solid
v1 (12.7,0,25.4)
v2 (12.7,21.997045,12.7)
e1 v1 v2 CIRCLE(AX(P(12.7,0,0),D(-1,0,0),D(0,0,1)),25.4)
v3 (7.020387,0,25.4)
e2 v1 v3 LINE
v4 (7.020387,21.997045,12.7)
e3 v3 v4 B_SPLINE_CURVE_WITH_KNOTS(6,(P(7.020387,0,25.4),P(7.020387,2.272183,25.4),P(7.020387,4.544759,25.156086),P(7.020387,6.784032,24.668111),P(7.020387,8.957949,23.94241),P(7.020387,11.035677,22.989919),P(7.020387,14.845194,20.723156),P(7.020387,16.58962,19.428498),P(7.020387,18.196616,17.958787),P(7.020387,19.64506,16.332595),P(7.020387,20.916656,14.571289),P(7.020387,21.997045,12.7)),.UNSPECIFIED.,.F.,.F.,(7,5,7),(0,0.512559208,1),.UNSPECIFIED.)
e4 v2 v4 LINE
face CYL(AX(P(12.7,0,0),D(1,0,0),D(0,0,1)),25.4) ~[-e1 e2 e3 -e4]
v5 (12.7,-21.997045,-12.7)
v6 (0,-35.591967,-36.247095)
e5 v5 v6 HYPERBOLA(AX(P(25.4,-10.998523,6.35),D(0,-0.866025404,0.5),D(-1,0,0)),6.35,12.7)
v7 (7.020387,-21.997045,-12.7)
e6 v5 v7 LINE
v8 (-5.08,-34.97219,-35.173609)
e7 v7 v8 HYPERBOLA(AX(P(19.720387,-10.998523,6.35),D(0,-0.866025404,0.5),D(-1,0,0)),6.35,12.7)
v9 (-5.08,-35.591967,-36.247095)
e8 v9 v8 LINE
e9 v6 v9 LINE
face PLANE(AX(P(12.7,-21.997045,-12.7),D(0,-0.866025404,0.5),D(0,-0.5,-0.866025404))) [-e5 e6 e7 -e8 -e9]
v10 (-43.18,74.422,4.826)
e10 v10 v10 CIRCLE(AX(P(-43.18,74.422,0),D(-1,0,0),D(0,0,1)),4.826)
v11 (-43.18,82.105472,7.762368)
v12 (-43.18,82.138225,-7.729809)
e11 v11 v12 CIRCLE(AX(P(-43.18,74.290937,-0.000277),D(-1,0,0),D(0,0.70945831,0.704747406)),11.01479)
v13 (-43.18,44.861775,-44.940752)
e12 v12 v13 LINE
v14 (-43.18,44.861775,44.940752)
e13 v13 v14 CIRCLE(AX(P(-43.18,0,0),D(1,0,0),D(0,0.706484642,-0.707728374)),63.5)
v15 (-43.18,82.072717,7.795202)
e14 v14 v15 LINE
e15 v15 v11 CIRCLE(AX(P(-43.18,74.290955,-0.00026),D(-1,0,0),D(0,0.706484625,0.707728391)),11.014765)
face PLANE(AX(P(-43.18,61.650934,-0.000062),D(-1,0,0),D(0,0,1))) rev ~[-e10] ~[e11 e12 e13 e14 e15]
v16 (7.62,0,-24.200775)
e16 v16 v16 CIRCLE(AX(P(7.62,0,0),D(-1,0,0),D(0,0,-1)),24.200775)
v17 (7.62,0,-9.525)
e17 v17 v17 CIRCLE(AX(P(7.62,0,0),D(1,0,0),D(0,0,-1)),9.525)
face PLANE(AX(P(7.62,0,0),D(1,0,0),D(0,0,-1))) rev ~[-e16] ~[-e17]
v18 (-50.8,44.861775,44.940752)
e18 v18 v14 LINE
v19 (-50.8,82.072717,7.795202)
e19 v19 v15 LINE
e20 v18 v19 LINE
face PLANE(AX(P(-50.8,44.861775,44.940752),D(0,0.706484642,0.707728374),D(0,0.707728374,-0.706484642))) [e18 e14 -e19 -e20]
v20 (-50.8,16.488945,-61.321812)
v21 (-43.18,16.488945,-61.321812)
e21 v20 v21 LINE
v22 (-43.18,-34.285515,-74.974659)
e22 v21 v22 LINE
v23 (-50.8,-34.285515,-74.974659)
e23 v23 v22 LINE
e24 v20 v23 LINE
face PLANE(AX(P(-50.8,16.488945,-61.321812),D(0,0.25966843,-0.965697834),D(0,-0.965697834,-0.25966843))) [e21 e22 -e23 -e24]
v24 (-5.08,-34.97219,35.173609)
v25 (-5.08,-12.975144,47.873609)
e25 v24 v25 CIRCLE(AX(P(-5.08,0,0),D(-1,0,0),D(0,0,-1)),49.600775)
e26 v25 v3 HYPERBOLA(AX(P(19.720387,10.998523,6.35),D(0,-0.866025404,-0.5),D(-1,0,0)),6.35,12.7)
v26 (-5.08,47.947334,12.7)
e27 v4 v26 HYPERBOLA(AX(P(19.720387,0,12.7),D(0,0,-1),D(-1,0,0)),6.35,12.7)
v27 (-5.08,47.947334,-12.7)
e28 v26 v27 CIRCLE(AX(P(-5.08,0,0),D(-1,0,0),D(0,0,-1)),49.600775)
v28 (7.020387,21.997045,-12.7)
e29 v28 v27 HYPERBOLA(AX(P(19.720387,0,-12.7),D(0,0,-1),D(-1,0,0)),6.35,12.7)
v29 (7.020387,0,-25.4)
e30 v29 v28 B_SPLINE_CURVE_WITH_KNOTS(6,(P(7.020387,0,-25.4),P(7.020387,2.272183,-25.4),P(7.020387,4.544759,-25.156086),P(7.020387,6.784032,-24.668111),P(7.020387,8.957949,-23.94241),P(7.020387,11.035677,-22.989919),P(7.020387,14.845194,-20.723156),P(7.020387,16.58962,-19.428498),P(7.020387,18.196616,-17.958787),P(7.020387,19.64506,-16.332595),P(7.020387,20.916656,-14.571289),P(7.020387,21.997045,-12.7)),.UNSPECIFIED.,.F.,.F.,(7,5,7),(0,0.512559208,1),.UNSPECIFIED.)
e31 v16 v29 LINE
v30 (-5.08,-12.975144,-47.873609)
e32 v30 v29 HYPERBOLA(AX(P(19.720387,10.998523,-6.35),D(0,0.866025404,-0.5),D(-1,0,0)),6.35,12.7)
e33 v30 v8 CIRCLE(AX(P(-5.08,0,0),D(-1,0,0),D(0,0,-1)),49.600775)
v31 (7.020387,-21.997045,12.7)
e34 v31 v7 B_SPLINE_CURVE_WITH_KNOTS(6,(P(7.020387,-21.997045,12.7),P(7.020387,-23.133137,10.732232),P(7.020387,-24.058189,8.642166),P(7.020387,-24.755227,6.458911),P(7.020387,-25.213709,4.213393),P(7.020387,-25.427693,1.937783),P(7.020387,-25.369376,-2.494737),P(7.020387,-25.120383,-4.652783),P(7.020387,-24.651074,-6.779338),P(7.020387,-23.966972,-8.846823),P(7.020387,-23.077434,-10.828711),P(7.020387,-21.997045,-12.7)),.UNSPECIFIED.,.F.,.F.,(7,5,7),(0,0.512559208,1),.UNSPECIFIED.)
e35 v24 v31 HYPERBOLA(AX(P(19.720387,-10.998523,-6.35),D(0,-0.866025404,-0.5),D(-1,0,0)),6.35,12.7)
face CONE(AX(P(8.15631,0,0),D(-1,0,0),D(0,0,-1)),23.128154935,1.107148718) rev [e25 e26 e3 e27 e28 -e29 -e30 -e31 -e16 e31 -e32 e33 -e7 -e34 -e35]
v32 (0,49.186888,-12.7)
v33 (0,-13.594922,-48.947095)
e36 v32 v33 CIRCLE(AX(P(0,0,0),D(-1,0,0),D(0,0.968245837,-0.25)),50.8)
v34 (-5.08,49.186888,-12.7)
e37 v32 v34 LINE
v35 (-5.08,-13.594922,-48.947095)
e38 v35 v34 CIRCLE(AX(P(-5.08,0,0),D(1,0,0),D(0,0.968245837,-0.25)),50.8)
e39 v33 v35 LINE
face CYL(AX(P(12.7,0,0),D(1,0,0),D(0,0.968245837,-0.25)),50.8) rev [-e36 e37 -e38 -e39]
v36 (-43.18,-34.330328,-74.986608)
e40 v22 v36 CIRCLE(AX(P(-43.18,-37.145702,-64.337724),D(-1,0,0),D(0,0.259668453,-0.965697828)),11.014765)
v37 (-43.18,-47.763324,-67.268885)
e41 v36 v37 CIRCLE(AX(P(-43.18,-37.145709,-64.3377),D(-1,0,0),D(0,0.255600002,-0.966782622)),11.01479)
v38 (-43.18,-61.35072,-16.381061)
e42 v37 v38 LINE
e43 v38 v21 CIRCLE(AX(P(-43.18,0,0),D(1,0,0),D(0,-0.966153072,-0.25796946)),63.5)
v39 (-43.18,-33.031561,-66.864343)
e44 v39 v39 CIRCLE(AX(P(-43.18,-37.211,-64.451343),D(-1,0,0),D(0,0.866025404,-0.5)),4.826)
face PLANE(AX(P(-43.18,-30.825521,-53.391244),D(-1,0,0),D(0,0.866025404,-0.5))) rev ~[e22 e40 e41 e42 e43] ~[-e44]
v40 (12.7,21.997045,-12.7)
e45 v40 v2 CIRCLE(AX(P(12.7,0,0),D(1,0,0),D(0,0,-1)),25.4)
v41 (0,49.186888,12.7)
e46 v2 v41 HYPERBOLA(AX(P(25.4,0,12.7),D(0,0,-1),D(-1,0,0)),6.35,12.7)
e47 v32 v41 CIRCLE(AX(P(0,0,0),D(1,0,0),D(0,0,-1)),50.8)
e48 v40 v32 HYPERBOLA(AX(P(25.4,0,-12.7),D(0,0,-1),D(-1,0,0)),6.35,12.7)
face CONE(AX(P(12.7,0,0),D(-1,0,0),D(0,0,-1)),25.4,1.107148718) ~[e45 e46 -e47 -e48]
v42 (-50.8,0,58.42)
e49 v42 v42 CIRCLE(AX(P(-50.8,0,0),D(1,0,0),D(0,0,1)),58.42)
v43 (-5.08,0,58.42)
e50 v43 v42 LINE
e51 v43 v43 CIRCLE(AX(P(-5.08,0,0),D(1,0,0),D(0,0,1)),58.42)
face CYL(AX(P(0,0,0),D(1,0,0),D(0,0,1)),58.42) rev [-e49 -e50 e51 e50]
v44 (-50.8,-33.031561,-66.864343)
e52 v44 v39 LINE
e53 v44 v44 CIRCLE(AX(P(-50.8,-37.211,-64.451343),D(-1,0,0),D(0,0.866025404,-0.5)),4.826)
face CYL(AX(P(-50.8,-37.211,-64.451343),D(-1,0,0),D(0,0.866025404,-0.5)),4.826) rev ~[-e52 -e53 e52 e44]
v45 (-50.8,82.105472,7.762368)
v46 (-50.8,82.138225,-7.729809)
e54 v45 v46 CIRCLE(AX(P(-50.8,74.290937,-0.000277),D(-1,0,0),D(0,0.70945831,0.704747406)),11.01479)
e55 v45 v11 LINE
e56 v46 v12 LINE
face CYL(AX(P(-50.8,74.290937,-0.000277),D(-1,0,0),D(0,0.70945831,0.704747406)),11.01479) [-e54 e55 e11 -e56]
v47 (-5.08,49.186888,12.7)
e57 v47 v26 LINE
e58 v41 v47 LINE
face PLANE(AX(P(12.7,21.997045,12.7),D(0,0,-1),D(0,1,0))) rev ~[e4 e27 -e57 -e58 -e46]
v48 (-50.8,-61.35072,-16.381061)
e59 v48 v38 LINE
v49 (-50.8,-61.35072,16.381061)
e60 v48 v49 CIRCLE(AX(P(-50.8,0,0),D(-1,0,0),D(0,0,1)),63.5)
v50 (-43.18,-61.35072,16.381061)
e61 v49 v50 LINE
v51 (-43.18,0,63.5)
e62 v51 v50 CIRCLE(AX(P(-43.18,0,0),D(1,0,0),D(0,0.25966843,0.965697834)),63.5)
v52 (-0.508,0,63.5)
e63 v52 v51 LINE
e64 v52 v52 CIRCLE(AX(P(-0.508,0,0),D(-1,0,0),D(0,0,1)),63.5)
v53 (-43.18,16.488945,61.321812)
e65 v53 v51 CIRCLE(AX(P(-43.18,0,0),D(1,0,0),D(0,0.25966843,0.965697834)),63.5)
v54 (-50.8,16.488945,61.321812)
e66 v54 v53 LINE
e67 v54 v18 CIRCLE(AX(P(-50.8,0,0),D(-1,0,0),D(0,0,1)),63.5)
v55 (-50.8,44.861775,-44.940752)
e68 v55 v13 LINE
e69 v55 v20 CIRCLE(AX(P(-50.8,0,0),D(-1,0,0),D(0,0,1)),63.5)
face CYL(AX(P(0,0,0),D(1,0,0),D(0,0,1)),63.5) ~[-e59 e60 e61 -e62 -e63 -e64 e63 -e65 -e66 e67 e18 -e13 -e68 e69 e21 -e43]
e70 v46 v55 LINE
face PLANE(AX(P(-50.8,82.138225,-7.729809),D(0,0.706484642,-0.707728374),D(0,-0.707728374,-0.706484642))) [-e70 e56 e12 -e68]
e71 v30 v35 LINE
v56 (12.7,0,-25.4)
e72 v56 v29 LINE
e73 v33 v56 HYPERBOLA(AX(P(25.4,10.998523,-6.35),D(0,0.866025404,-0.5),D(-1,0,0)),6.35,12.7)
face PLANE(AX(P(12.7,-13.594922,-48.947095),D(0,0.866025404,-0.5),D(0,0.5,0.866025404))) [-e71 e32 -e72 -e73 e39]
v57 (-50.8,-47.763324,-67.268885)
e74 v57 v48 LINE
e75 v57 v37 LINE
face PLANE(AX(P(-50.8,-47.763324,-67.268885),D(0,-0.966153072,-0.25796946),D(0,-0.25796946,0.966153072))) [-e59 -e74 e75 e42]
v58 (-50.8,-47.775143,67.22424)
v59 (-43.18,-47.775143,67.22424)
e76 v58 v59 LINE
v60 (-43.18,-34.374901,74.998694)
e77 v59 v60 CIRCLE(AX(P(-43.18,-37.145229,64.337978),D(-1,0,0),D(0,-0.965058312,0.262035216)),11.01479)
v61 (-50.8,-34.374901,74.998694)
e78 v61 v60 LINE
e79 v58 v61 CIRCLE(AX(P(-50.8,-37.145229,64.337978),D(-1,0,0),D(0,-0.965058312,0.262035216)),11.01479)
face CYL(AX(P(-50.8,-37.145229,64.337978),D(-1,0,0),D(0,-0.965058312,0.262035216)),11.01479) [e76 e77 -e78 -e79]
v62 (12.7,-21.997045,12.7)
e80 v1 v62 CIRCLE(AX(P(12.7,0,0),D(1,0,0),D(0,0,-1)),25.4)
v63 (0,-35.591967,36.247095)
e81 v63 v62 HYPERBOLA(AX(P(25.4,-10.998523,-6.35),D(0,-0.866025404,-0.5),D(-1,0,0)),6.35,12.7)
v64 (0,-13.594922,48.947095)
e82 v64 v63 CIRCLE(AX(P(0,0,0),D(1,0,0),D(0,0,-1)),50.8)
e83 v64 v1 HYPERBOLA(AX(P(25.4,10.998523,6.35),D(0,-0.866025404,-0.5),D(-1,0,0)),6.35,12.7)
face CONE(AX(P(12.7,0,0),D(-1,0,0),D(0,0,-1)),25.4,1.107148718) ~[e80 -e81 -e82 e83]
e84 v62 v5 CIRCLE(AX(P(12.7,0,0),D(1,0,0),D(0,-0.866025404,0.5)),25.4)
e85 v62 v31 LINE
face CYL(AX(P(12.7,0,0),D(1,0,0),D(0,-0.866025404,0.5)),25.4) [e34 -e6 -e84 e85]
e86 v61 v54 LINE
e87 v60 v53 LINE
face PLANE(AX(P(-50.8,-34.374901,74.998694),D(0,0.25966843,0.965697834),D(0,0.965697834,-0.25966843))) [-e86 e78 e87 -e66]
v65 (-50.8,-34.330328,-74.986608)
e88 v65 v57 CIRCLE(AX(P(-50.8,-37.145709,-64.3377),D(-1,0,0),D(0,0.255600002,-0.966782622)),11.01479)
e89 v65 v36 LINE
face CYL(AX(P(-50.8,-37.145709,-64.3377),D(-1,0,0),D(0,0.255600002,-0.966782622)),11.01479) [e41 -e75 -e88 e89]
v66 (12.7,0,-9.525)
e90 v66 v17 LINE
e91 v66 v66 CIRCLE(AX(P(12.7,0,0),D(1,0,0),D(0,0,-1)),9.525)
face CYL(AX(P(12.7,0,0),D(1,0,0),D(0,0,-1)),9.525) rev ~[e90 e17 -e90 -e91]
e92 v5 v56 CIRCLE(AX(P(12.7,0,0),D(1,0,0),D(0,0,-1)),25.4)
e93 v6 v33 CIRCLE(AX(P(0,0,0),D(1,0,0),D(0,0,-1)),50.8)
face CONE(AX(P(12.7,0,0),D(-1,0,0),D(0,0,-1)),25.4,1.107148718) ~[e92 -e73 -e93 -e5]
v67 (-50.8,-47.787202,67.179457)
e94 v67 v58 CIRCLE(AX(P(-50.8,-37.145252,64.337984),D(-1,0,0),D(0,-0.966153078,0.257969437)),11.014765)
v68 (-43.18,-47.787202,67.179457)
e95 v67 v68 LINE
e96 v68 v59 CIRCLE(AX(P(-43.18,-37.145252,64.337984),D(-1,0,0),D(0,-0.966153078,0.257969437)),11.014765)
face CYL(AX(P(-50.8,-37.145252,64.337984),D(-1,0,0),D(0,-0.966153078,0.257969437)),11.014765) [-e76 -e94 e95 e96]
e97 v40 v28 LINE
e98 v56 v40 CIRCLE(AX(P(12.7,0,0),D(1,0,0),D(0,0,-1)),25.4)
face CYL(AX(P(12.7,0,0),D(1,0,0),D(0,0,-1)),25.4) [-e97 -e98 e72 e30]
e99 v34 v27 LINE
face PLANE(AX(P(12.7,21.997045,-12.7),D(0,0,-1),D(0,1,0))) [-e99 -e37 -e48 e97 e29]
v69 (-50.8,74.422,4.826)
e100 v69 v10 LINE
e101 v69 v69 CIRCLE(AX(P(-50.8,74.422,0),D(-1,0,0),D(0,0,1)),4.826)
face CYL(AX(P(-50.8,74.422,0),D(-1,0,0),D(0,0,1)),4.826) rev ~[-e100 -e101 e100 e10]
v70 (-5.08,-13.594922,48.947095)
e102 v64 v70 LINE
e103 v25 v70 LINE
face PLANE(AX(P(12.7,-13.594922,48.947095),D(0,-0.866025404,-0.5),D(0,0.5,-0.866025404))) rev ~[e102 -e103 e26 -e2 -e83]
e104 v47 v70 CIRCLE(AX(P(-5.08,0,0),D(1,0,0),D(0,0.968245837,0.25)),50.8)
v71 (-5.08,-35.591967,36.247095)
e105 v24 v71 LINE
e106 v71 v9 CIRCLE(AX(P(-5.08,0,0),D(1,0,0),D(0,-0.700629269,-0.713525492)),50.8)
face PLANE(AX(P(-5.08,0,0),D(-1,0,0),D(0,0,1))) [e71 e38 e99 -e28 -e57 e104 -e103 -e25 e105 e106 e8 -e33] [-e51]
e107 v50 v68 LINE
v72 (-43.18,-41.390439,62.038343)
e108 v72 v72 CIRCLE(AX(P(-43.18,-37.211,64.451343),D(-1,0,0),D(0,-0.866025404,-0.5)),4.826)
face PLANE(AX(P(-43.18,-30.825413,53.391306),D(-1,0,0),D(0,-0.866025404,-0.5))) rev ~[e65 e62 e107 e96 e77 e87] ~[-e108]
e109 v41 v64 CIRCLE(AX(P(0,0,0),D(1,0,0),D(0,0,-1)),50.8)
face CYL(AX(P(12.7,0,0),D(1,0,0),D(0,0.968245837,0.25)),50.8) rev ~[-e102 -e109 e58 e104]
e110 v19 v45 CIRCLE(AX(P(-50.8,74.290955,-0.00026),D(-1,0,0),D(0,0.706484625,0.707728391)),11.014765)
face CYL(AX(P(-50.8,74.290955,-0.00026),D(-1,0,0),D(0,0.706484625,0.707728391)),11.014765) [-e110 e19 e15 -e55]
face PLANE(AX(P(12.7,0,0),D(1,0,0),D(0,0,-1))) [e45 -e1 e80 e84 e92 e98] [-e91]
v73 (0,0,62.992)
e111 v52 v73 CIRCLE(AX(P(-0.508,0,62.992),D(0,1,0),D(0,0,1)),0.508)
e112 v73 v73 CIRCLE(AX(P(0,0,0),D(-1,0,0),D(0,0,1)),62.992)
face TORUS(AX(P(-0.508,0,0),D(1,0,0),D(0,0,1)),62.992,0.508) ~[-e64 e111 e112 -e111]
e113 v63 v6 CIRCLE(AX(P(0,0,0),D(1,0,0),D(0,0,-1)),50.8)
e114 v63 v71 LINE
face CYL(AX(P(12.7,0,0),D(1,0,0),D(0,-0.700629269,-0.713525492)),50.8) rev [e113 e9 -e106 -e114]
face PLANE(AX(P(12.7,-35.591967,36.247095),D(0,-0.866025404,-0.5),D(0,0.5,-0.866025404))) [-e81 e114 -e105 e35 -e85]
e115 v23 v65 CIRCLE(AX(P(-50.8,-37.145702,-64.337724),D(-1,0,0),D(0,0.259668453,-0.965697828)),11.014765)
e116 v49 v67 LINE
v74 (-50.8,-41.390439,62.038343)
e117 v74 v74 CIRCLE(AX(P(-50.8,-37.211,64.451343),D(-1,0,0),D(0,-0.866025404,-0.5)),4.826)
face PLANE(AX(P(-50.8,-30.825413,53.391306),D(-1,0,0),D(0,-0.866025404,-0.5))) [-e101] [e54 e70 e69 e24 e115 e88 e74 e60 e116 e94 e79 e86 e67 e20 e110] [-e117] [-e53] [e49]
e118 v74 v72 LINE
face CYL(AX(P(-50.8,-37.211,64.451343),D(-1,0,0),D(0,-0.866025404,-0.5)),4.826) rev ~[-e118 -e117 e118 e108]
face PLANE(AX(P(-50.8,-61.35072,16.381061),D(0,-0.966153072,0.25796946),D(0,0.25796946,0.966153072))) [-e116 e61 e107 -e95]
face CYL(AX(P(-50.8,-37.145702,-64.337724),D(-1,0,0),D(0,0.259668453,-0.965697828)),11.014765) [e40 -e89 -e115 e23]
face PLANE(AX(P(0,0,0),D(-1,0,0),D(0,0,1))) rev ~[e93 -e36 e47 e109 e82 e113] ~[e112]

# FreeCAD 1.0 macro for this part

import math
import FreeCAD as App
import Part
import Sketcher

V = App.Vector
Q = App.Units.Quantity


def edges_at(feature, points):
    """Names of the edges that pass closest to the given points."""
    edges = feature.Shape.Edges
    near = lambda p: min(range(len(edges)), key=lambda i: edges[i].distToShape(Part.Vertex(*p))[0])
    return sorted({f"Edge{near(p) + 1}" for p in points})


def faces_at(feature, points):
    """Names of the faces that lie closest to the given points."""
    faces = feature.Shape.Faces
    near = lambda p: min(range(len(faces)), key=lambda i: faces[i].distToShape(Part.Vertex(*p))[0])
    return sorted({f"Face{near(p) + 1}" for p in points})

doc = App.newDocument("Part")
body = doc.addObject("PartDesign::Body", "Body")

# Sketch on YZ plane
sketch1 = body.newObject("Sketcher::SketchObject", "Sketch")
sketch1.AttachmentSupport = (doc.getObject("YZ_Plane"), [""])
sketch1.MapMode = "FlatFace"
sketch1.AttachmentOffset = App.Placement(V(0, 0, 0.5 * 25.4), App.Rotation())
sketch1.addGeometry(Part.Circle(V(0, 0, 0), V(0, 0, 1), 25), False)
sketch1.addConstraint([
    Sketcher.Constraint("Coincident", 0, 3, -1, 1),
    Sketcher.Constraint("Diameter", 0, Q("2 in")),
])

# Sketch on YZ plane
sketch2 = body.newObject("Sketcher::SketchObject", "Sketch001")
sketch2.AttachmentSupport = (doc.getObject("YZ_Plane"), [""])
sketch2.MapMode = "FlatFace"
sketch2.addGeometry(Part.Circle(V(0, 0, 0), V(0, 0, 1), 51), False)
sketch2.addConstraint([
    Sketcher.Constraint("Coincident", 0, 3, -1, 1),
    Sketcher.Constraint("Diameter", 0, Q("4 in")),
])

additiveloft = body.newObject("PartDesign::AdditiveLoft", "AdditiveLoft")
additiveloft.Profile = sketch1
additiveloft.Sections = [sketch2]

# Sketch on YZ plane
sketch3 = body.newObject("Sketcher::SketchObject", "Sketch002")
sketch3.AttachmentSupport = (doc.getObject("YZ_Plane"), [""])
sketch3.MapMode = "FlatFace"
sketch3.addGeometry(Part.Circle(V(0, 0, 0), V(0, 0, 1), 64), False)
sketch3.addConstraint([
    Sketcher.Constraint("Coincident", 0, 3, -1, 1),
    Sketcher.Constraint("Diameter", 0, Q("5 in")),
])
pad1 = body.newObject("PartDesign::Pad", "Pad")
pad1.Profile = sketch3
pad1.Length = Q("2 in")
pad1.Reversed = True
doc.recompute()

thickness = body.newObject("PartDesign::Thickness", "Thickness")
thickness.Base = (pad1, faces_at(pad1, [(-50.8, 0, 0)]))
thickness.Value = Q("0.2 in")
thickness.Reversed = True
thickness.Join = "Intersection"

# Sketch on YZ plane
sketch4 = body.newObject("Sketcher::SketchObject", "Sketch003")
sketch4.AttachmentSupport = (doc.getObject("YZ_Plane"), [""])
sketch4.MapMode = "FlatFace"
sketch4.AttachmentOffset = App.Placement(V(0, 0, 0.5 * 25.4), App.Rotation())
sketch4.addGeometry([
    Part.LineSegment(V(22, 13, 0), V(49, 13, 0)),  # 0
    Part.ArcOfCircle(Part.Circle(V(0, 0, 0), V(0, 0, 1), 51), math.radians(14), math.radians(106)),  # 1
    Part.LineSegment(V(-14, 49, 0), V(0, 25, 0)),  # 2
    Part.ArcOfCircle(Part.Circle(V(0, 0, 0), V(0, 0, 1), 25), math.radians(30), math.radians(90)),  # 3
    Part.LineSegment(V(49, -13, 0), V(22, -13, 0)),  # 4
    Part.ArcOfCircle(Part.Circle(V(0, 0, 0), V(0, 0, 1), 25), math.radians(-90), math.radians(-30)),  # 5
    Part.LineSegment(V(0, -25, 0), V(-14, -49, 0)),  # 6
    Part.ArcOfCircle(Part.Circle(V(0, 0, 0), V(0, 0, 1), 51), math.radians(-106), math.radians(-14)),  # 7
    Part.LineSegment(V(-36, -36, 0), V(-22, -13, 0)),  # 8
    Part.ArcOfCircle(Part.Circle(V(0, 0, 0), V(0, 0, 1), 25), math.radians(150), math.radians(210)),  # 9
    Part.LineSegment(V(-22, 13, 0), V(-36, 36, 0)),  # 10
    Part.ArcOfCircle(Part.Circle(V(0, 0, 0), V(0, 0, 1), 51), math.radians(134), math.radians(226)),  # 11
], False)
sketch4.addConstraint([
    Sketcher.Constraint("Coincident", 0, 2, 1, 1),
    Sketcher.Constraint("Coincident", 1, 2, 2, 1),
    Sketcher.Constraint("Coincident", 2, 2, 3, 2),
    Sketcher.Constraint("Coincident", 3, 1, 0, 1),
    Sketcher.Constraint("Coincident", 4, 2, 5, 2),
    Sketcher.Constraint("Coincident", 5, 1, 6, 1),
    Sketcher.Constraint("Coincident", 6, 2, 7, 1),
    Sketcher.Constraint("Coincident", 7, 2, 4, 1),
    Sketcher.Constraint("Coincident", 8, 2, 9, 2),
    Sketcher.Constraint("Coincident", 9, 1, 10, 1),
    Sketcher.Constraint("Coincident", 10, 2, 11, 1),
    Sketcher.Constraint("Coincident", 11, 2, 8, 1),
    Sketcher.Constraint("Horizontal", 0),
    Sketcher.Constraint("Horizontal", 4),
    Sketcher.Constraint("Coincident", 1, 3, -1, 1),
    Sketcher.Constraint("Coincident", 3, 3, -1, 1),
    Sketcher.Constraint("Coincident", 5, 3, -1, 1),
    Sketcher.Constraint("Coincident", 7, 3, -1, 1),
    Sketcher.Constraint("Coincident", 9, 3, -1, 1),
    Sketcher.Constraint("Coincident", 11, 3, -1, 1),
    Sketcher.Constraint("Equal", 3, 5),
    Sketcher.Constraint("Equal", 1, 7),
    Sketcher.Constraint("Equal", 5, 9),
    Sketcher.Constraint("Equal", 7, 11),
    Sketcher.Constraint("PointOnObject", 2, 2, -2),
    Sketcher.Constraint("PointOnObject", 5, 1, -2),
    Sketcher.Constraint("Parallel", 6, 8),
    Sketcher.Constraint("Parallel", 2, 10),
    Sketcher.Constraint("Horizontal", 7, 2, 8, 2),
    Sketcher.Constraint("Horizontal", 3, 1, 9, 1),
    Sketcher.Constraint("Vertical", 3, 1, 4, 2),
    Sketcher.Constraint("Vertical", 1, 2, 6, 2),
    Sketcher.Constraint("Equal", 6, 8),
    Sketcher.Constraint("Radius", 1, Q("2 in")),
    Sketcher.Constraint("Radius", 3, Q("1 in")),
    Sketcher.Constraint("Angle", 2, Q("-60 deg")),
])
pocket1 = body.newObject("PartDesign::Pocket", "Pocket")
pocket1.Profile = sketch4
pocket1.Length = Q("2 in")

# Sketch on YZ plane
sketch5 = body.newObject("Sketcher::SketchObject", "Sketch004")
sketch5.AttachmentSupport = (doc.getObject("YZ_Plane"), [""])
sketch5.MapMode = "FlatFace"
sketch5.AttachmentOffset = App.Placement(V(0, 0, -2 * 25.4), App.Rotation())
sketch5.addGeometry([
    Part.ArcOfCircle(Part.Circle(V(74.291, 0, 0), V(0, 0, 1), 11.015), math.radians(-45), math.radians(45)),  # 0
    Part.LineSegment(V(82.138, -7.73, 0), V(44.862, -44.941, 0)),  # 1
    Part.ArcOfCircle(Part.Circle(V(0, 0, 0), V(0, 0, 1), 63.5), math.radians(-45), math.radians(45)),  # 2
    Part.LineSegment(V(44.862, 44.941, 0), V(82.073, 7.795, 0)),  # 3
    Part.ArcOfCircle(Part.Circle(V(74.291, 0, 0), V(0, 0, 1), 11.015), math.radians(44.81), math.radians(45.05)),  # 4
    Part.Circle(V(74.422, 0, 0), V(0, 0, 1), 4.826),  # 5
], False)
sketch5.addConstraint([
    Sketcher.Constraint("Coincident", 0, 1, 1, 1),
    Sketcher.Constraint("Tangent", 1, 2, 2, 1),
    Sketcher.Constraint("Tangent", 2, 2, 3, 1),
    Sketcher.Constraint("Tangent", 3, 2, 4, 2),
    Sketcher.Constraint("Tangent", 4, 1, 0, 2),
    Sketcher.Constraint("Coincident", 2, 3, -1, 1),
    Sketcher.Constraint("PointOnObject", 5, 3, -1),
    Sketcher.Constraint("Vertical", 1, 2, 2, 2),
    Sketcher.Constraint("Radius", 2, Q("2.5 in")),
    Sketcher.Constraint("Diameter", 5, Q("0.38 in")),
    Sketcher.Constraint("Distance", 3, Q("2.07 in")),
    Sketcher.Constraint("DistanceX", -1, 1, 5, 3, Q("2.93 in")),
    Sketcher.Constraint("Radius", 0, Q("11.01479 mm")),
    Sketcher.Constraint("Radius", 4, Q("11.014765 mm")),
    Sketcher.Constraint("Distance", 1, Q("52.670561 mm")),
    Sketcher.Constraint("DistanceX", -1, 1, 4, 1, Q("82.105472 mm")),
])
pad2 = body.newObject("PartDesign::Pad", "Pad001")
pad2.Profile = sketch5
pad2.Length = Q("0.3 in")
doc.recompute()

fillet = body.newObject("PartDesign::Fillet", "Fillet")
fillet.Base = (pad2, edges_at(pad2, [(0, 0, -63.5)]))
fillet.Radius = Q("0.02 in")

# Sketch on YZ plane
sketch6 = body.newObject("Sketcher::SketchObject", "Sketch005")
sketch6.AttachmentSupport = (doc.getObject("YZ_Plane"), [""])
sketch6.MapMode = "FlatFace"
sketch6.AttachmentOffset = App.Placement(V(0, 0, 0.5 * 25.4), App.Rotation())
sketch6.addGeometry(Part.Circle(V(0, 0, 0), V(0, 0, 1), 10), False)
sketch6.addConstraint([
    Sketcher.Constraint("Coincident", 0, 3, -1, 1),
    Sketcher.Constraint("Diameter", 0, Q("0.75 in")),
])
pocket2 = body.newObject("PartDesign::Pocket", "Pocket001")
pocket2.Profile = sketch6
pocket2.Type = "ThroughAll"
doc.recompute()

polarpattern = body.newObject("PartDesign::PolarPattern", "PolarPattern")
polarpattern.Originals = [pad2]
polarpattern.Axis = (doc.getObject("X_Axis"), [""])
polarpattern.Angle = 360
polarpattern.Occurrences = 3
body.Tip = polarpattern

doc.recompute()
